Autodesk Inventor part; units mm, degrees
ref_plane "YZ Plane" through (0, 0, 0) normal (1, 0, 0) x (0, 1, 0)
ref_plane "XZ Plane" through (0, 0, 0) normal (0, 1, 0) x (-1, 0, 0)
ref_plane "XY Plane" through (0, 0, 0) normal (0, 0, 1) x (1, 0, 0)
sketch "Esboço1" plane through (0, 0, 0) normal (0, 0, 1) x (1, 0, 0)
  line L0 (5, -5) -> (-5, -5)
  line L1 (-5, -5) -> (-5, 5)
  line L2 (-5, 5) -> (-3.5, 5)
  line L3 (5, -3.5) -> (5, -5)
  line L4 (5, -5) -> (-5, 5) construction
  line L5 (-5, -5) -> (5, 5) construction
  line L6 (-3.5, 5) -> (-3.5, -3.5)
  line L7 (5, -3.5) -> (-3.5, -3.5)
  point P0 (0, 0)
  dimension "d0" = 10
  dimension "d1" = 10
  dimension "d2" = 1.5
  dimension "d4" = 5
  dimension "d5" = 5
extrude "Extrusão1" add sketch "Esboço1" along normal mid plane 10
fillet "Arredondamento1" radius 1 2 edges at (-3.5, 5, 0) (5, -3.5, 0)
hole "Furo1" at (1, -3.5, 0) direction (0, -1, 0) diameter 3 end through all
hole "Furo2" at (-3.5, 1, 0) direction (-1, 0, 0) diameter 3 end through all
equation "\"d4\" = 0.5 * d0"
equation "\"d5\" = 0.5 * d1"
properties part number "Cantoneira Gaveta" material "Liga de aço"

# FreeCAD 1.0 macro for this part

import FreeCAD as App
import Part
import Sketcher
from FreeCAD import Vector


def edges_at(feature, points):
    """Names of the edges that pass closest to the given points."""
    edges = feature.Shape.Edges
    near = lambda p: min(range(len(edges)), key=lambda i: edges[i].distToShape(Part.Vertex(*p))[0])
    return sorted({f"Edge{near(p) + 1}" for p in points})

doc = App.newDocument("Part")
body = doc.addObject("PartDesign::Body", "Body")

sketch1 = body.newObject("Sketcher::SketchObject", "Sketch")
sketch1.AttachmentSupport = (doc.getObject("XY_Plane"), [""])
sketch1.MapMode = "FlatFace"
sketch1.addGeometry([
    Part.LineSegment(Vector(-5, -5, 0), Vector(5, -5, 0)),
    Part.LineSegment(Vector(5, -5, 0), Vector(5, -3.5, 0)),
    Part.LineSegment(Vector(5, -3.5, 0), Vector(-3.5, -3.5, 0)),
    Part.LineSegment(Vector(-3.5, -3.5, 0), Vector(-3.5, 5, 0)),
    Part.LineSegment(Vector(-3.5, 5, 0), Vector(-5, 5, 0)),
    Part.LineSegment(Vector(-5, 5, 0), Vector(-5, -5, 0)),
], False)
sketch1.addConstraint([
    Sketcher.Constraint("Coincident", 0, 2, 1, 1),
    Sketcher.Constraint("Coincident", 1, 2, 2, 1),
    Sketcher.Constraint("Coincident", 2, 2, 3, 1),
    Sketcher.Constraint("Coincident", 3, 2, 4, 1),
    Sketcher.Constraint("Coincident", 4, 2, 5, 1),
    Sketcher.Constraint("Coincident", 5, 2, 0, 1),
    Sketcher.Constraint("Horizontal", 0),
    Sketcher.Constraint("Vertical", 1),
    Sketcher.Constraint("Horizontal", 2),
    Sketcher.Constraint("Vertical", 3),
    Sketcher.Constraint("Horizontal", 4),
    Sketcher.Constraint("Vertical", 5),
    Sketcher.Constraint("Symmetric", 0, 2, 4, 2, -1, 1),
    Sketcher.Constraint("Equal", 4, 1),
    Sketcher.Constraint("Equal", 2, 3),
    Sketcher.Constraint("DistanceX", 0, 1, 0, 2, 10.0),
    Sketcher.Constraint("DistanceX", 4, 2, 4, 1, 1.5),
])
pad1 = body.newObject("PartDesign::Pad", "Pad")
pad1.Profile = sketch1
pad1.Length = 10
pad1.Midplane = True
doc.recompute()

fillet = body.newObject("PartDesign::Fillet", "Fillet")
fillet.Base = (pad1, edges_at(pad1, [(-3.5, 5, 0), (5, -3.5, 0)]))
fillet.Radius = 1

sketch2 = body.newObject("Sketcher::SketchObject", "Sketch001")
sketch2.AttachmentSupport = (doc.getObject("XZ_Plane"), [""])
sketch2.MapMode = "FlatFace"
sketch2.AttachmentOffset = App.Placement(Vector(0, 0, 3.5), App.Rotation())
sketch2.addGeometry(Part.Circle(Vector(1, 0, 0), Vector(0, 0, 1), 1.5), False)
sketch2.addConstraint([
    Sketcher.Constraint("PointOnObject", 0, 3, -1),
    Sketcher.Constraint("Diameter", 0, 3.0),
    Sketcher.Constraint("DistanceX", -1, 1, 0, 3, 1.0),
])
doc.recompute()
hole = body.newObject("PartDesign::Hole", "Hole")
hole.Profile = sketch2
hole.ThreadType = "None"
hole.Diameter = 3
hole.DepthType = "ThroughAll"
hole.Reversed = True

sketch3 = body.newObject("Sketcher::SketchObject", "Sketch002")
sketch3.AttachmentSupport = (doc.getObject("YZ_Plane"), [""])
sketch3.MapMode = "FlatFace"
sketch3.AttachmentOffset = App.Placement(Vector(0, 0, -3.5), App.Rotation())
sketch3.addGeometry(Part.Circle(Vector(1, 0, 0), Vector(0, 0, 1), 1.5), False)
sketch3.addConstraint([
    Sketcher.Constraint("PointOnObject", 0, 3, -1),
    Sketcher.Constraint("Diameter", 0, 3.0),
    Sketcher.Constraint("DistanceX", -1, 1, 0, 3, 1.0),
])
doc.recompute()
hole2 = body.newObject("PartDesign::Hole", "Hole001")
hole2.Profile = sketch3
hole2.ThreadType = "None"
hole2.Diameter = 3
hole2.DepthType = "ThroughAll"

doc.recompute()
